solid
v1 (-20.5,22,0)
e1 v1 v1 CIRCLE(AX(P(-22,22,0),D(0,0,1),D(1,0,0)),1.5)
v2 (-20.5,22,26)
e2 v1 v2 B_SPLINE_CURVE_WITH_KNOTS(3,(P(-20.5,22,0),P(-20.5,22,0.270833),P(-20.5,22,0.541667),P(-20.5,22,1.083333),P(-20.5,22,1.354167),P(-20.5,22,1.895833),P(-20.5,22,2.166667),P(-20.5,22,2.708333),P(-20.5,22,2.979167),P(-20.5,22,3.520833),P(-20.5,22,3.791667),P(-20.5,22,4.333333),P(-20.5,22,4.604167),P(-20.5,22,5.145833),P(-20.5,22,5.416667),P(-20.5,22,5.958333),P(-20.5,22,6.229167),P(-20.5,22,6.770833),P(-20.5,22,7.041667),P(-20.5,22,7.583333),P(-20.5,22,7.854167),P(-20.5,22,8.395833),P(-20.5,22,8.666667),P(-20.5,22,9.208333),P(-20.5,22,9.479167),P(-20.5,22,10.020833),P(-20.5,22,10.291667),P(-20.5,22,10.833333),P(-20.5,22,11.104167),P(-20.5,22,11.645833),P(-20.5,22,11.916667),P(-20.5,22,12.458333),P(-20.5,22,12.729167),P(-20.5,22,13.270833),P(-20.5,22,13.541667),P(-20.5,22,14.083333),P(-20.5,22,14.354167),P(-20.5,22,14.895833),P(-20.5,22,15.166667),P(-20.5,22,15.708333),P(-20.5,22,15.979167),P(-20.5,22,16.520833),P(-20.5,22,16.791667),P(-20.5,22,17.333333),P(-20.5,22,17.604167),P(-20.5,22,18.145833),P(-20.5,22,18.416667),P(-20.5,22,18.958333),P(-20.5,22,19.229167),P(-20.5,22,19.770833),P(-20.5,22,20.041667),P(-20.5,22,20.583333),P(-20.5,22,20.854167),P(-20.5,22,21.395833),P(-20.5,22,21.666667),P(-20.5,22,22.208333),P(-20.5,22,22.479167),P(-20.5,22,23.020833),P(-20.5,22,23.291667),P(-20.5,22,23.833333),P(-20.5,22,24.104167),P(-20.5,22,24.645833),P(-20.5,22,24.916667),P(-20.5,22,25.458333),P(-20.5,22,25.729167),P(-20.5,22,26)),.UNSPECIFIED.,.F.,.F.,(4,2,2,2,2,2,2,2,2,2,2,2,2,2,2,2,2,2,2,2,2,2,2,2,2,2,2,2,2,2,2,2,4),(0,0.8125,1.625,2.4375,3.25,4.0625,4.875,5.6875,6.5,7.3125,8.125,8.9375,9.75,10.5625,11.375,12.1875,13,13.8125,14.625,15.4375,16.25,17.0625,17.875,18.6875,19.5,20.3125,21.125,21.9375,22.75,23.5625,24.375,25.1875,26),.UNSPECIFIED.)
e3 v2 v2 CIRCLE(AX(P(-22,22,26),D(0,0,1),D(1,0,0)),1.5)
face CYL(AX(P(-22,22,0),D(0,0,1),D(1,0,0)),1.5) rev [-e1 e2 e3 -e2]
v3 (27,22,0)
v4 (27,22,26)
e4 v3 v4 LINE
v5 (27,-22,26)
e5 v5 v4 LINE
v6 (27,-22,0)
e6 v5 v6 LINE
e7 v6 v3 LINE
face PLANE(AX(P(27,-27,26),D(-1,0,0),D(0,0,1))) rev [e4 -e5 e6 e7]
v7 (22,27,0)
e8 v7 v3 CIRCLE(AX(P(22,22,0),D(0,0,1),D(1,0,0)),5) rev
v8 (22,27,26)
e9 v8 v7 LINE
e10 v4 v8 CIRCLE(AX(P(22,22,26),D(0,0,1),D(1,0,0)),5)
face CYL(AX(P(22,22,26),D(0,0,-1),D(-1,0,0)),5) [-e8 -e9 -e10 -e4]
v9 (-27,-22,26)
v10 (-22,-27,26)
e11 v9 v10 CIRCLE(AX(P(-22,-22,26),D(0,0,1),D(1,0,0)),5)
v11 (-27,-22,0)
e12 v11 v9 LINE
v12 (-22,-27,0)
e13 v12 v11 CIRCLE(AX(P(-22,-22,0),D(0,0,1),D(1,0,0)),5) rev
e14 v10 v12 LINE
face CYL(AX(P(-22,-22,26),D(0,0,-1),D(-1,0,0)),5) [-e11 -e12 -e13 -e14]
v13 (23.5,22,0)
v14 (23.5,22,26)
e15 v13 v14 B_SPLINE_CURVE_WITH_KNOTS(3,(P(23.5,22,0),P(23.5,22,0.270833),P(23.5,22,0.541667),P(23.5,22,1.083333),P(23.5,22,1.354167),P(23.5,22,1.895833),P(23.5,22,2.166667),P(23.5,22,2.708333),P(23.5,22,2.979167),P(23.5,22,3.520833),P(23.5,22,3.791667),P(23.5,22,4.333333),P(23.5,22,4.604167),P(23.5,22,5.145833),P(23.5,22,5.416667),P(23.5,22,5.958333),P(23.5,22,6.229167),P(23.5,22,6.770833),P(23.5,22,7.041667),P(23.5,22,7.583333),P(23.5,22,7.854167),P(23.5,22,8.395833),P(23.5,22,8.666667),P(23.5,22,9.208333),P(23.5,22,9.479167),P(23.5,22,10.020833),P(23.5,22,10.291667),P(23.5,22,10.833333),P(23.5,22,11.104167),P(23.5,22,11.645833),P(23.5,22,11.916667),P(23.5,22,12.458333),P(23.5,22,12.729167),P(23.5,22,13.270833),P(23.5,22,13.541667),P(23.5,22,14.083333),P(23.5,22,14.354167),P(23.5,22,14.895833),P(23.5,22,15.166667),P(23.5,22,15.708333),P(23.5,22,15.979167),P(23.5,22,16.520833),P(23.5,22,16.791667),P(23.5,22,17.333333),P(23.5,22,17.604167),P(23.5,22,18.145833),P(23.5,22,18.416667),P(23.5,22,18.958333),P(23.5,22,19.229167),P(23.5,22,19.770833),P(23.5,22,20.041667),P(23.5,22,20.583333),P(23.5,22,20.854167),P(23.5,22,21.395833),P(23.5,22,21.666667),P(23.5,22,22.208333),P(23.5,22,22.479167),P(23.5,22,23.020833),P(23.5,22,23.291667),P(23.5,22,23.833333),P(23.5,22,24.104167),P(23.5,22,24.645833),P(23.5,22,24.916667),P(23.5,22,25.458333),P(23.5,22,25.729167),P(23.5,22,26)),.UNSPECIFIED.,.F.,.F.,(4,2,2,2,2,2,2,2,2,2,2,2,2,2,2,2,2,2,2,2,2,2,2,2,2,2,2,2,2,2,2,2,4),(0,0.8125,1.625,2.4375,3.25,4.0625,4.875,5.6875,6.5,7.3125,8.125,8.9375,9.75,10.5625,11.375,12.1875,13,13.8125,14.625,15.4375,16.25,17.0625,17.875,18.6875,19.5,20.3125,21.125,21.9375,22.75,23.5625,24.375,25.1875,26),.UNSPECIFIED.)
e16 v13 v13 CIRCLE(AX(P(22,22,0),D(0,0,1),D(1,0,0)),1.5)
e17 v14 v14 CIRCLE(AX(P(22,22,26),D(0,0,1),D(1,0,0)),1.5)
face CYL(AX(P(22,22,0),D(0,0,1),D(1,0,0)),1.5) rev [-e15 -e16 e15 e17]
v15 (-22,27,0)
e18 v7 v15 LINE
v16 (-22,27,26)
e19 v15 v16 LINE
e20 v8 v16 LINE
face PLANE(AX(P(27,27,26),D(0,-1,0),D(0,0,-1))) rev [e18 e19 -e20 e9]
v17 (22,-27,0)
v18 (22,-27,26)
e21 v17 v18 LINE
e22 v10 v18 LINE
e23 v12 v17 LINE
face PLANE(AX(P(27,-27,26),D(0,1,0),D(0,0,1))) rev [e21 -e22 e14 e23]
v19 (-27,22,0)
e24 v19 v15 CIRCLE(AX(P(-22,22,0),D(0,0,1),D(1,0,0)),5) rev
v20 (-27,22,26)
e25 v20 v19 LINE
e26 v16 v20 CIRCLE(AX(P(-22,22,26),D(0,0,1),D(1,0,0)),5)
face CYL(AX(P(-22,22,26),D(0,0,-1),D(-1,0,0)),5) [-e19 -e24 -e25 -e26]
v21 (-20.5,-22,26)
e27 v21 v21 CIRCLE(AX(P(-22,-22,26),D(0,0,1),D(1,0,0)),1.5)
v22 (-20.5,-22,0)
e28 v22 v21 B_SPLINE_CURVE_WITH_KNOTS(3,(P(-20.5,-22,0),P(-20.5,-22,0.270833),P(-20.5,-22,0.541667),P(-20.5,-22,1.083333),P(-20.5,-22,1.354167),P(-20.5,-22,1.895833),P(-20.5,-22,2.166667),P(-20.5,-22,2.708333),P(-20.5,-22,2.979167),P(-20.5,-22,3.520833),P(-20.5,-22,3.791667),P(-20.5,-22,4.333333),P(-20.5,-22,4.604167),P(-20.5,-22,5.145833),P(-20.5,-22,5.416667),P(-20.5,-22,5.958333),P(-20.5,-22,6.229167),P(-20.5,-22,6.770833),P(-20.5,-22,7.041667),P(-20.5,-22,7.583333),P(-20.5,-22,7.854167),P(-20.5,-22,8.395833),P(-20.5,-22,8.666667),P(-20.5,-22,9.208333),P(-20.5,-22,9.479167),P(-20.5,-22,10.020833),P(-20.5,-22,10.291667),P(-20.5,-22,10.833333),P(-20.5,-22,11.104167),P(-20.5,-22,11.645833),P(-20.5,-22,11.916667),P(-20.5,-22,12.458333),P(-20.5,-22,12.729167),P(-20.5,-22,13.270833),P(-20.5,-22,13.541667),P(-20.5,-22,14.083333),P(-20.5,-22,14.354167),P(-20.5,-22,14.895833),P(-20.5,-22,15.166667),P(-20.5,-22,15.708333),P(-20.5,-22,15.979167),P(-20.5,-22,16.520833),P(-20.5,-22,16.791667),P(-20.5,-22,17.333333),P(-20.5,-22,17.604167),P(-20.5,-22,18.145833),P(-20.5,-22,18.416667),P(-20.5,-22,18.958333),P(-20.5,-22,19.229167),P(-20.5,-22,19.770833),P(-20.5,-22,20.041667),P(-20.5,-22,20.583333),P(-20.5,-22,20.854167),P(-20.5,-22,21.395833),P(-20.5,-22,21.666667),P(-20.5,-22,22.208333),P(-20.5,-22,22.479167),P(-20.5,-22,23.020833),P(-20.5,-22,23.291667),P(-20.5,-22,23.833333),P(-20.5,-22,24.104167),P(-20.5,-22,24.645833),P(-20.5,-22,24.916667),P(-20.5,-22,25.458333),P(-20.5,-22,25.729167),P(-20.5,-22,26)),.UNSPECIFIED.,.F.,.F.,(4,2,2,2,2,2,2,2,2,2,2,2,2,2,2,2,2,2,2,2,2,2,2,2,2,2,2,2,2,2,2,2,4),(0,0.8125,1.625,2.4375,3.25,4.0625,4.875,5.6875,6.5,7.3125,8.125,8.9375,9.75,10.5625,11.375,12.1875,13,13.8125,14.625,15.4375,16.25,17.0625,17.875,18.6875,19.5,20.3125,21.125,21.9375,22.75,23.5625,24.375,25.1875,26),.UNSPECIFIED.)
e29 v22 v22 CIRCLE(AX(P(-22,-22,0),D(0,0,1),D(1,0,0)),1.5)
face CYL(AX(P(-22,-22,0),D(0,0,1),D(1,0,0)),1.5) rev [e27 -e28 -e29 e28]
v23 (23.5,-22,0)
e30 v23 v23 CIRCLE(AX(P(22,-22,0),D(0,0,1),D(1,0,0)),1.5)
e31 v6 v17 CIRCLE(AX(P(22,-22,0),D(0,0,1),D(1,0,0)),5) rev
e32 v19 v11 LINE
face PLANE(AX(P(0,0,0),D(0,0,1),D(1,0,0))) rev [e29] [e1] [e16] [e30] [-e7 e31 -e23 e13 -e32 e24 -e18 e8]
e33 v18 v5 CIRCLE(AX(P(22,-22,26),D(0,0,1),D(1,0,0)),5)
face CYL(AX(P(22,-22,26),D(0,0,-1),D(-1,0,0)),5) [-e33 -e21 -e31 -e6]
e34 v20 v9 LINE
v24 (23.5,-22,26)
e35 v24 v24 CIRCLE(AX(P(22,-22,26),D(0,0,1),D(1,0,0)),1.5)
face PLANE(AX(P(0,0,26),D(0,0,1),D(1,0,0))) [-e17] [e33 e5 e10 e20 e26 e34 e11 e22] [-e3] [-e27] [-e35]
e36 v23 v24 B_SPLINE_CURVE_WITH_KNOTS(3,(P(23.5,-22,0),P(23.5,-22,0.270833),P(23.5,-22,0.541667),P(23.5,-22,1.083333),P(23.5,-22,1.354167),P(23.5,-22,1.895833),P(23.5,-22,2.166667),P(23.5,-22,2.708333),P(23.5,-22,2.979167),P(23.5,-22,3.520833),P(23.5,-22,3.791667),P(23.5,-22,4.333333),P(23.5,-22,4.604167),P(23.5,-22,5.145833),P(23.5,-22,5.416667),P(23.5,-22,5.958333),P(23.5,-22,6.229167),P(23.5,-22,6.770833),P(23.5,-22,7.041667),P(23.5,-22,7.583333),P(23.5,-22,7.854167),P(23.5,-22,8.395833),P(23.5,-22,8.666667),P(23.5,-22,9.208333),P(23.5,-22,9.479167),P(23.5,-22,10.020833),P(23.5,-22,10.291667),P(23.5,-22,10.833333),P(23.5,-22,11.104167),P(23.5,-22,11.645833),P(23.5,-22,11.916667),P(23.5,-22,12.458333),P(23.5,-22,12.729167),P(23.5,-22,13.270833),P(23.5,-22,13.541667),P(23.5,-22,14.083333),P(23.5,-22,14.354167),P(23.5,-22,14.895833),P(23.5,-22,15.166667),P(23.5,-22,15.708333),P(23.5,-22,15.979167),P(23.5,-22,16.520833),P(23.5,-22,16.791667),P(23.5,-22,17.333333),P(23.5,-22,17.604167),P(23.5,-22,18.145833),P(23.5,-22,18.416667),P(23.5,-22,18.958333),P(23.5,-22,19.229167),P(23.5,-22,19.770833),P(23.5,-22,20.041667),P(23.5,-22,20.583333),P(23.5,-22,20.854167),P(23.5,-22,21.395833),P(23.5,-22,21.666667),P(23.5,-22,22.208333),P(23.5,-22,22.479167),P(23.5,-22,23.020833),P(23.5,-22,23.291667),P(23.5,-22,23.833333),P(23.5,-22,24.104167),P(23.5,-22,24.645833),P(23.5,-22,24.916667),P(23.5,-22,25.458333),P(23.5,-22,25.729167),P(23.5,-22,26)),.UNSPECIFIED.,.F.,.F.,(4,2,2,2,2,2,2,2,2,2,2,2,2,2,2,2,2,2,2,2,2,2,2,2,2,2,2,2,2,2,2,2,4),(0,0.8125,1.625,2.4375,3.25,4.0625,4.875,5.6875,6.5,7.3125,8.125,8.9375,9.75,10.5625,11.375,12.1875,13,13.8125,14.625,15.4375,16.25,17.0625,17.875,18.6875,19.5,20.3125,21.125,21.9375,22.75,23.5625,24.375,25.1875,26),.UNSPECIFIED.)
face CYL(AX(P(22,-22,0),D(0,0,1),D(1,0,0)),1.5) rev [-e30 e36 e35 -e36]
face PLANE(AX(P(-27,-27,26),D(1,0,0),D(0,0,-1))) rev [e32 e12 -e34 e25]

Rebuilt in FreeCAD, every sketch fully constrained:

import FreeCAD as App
import Part
import Sketcher
from FreeCAD import Vector


def edges_at(feature, points):
    """Names of the edges that pass closest to the given points."""
    edges = feature.Shape.Edges
    near = lambda p: min(range(len(edges)), key=lambda i: edges[i].distToShape(Part.Vertex(*p))[0])
    return sorted({f"Edge{near(p) + 1}" for p in points})

doc = App.newDocument("Part")
params = doc.addObject("Spreadsheet::Sheet", "Params")
for row, (alias, value) in enumerate([
    ("sketch1_width", "54 mm"),
    ("pad1_length", "26 mm"),
    ("fillet_radius", "5 mm"),
    ("sketch2_diameter", "3 mm"),
], start=1):
    params.set(f"A{row}", alias)
    params.set(f"B{row}", "=" + value)
    params.setAlias(f"B{row}", alias)

body = doc.addObject("PartDesign::Body", "Body")

# Sketch on XY plane
sketch1 = doc.addObject("Sketcher::SketchObject", "Sketch")
body.addObject(sketch1)
sketch1.AttachmentSupport = (doc.XY_Plane, [""])
sketch1.MapMode = "FlatFace"
sketch1.addGeometry([
    Part.LineSegment(Vector(-27, 27, 0), Vector(-27, -27, 0)),
    Part.LineSegment(Vector(-27, -27, 0), Vector(27, -27, 0)),
    Part.LineSegment(Vector(27, -27, 0), Vector(27, 27, 0)),
    Part.LineSegment(Vector(27, 27, 0), Vector(-27, 27, 0)),
], False)
sketch1.addConstraint([
    Sketcher.Constraint("Coincident", 0, 2, 1, 1),
    Sketcher.Constraint("Coincident", 1, 2, 2, 1),
    Sketcher.Constraint("Coincident", 2, 2, 3, 1),
    Sketcher.Constraint("Coincident", 3, 2, 0, 1),
    Sketcher.Constraint("Vertical", 0),
    Sketcher.Constraint("Horizontal", 1),
    Sketcher.Constraint("Vertical", 2),
    Sketcher.Constraint("Horizontal", 3),
    Sketcher.Constraint("Symmetric", 0, 2, 2, 2, -1, 1),
    Sketcher.Constraint("Equal", 3, 0),
    Sketcher.Constraint("DistanceX", 1, 1, 1, 2, 54.0),
])
sketch1.setExpression("Constraints[10]", "Params.sketch1_width")
pad1 = doc.addObject("PartDesign::Pad", "Pad")
body.addObject(pad1)
pad1.Profile = sketch1
pad1.setExpression("Length", "Params.pad1_length")
doc.recompute()

fillet = doc.addObject("PartDesign::Fillet", "Fillet")
body.addObject(fillet)
fillet.Base = (pad1, edges_at(pad1, [
    (-27, 27, 13),
    (27, 27, 13),
    (27, -27, 13),
    (-27, -27, 13),
]))
fillet.setExpression("Radius", "Params.fillet_radius")

# Sketch on XY plane
sketch2 = doc.addObject("Sketcher::SketchObject", "Sketch001")
body.addObject(sketch2)
sketch2.AttachmentSupport = (doc.XY_Plane, [""])
sketch2.MapMode = "FlatFace"
sketch2.AttachmentOffset = App.Placement(Vector(0, 0, 26), App.Rotation())
sketch2.addGeometry([
    Part.Circle(Vector(-22, 22, 0), Vector(0, 0, 1), 1.5),
    Part.Circle(Vector(22, 22, 0), Vector(0, 0, 1), 1.5),
    Part.Circle(Vector(22, -22, 0), Vector(0, 0, 1), 1.5),
    Part.Circle(Vector(-22, -22, 0), Vector(0, 0, 1), 1.5),
], False)
sketch2.addConstraint([
    Sketcher.Constraint("Equal", 0, 1),
    Sketcher.Constraint("Equal", 1, 2),
    Sketcher.Constraint("Equal", 2, 3),
    Sketcher.Constraint("Symmetric", 0, 3, 2, 3, -1, 1),
    Sketcher.Constraint("Symmetric", 1, 3, 3, 3, -1, 1),
    Sketcher.Constraint("Symmetric", 0, 3, 1, 3, -2),
    Sketcher.Constraint("Diameter", 0, 3.0),
    Sketcher.Constraint("DistanceX", 0, 3, -1, 1, 22.0),
    Sketcher.Constraint("DistanceY", -1, 1, 0, 3, 22.0),
])
sketch2.setExpression("Constraints[6]", "Params.sketch2_diameter")
pocket1 = doc.addObject("PartDesign::Pocket", "Pocket")
body.addObject(pocket1)
pocket1.Profile = sketch2
pocket1.Type = "ThroughAll"

doc.recompute()
